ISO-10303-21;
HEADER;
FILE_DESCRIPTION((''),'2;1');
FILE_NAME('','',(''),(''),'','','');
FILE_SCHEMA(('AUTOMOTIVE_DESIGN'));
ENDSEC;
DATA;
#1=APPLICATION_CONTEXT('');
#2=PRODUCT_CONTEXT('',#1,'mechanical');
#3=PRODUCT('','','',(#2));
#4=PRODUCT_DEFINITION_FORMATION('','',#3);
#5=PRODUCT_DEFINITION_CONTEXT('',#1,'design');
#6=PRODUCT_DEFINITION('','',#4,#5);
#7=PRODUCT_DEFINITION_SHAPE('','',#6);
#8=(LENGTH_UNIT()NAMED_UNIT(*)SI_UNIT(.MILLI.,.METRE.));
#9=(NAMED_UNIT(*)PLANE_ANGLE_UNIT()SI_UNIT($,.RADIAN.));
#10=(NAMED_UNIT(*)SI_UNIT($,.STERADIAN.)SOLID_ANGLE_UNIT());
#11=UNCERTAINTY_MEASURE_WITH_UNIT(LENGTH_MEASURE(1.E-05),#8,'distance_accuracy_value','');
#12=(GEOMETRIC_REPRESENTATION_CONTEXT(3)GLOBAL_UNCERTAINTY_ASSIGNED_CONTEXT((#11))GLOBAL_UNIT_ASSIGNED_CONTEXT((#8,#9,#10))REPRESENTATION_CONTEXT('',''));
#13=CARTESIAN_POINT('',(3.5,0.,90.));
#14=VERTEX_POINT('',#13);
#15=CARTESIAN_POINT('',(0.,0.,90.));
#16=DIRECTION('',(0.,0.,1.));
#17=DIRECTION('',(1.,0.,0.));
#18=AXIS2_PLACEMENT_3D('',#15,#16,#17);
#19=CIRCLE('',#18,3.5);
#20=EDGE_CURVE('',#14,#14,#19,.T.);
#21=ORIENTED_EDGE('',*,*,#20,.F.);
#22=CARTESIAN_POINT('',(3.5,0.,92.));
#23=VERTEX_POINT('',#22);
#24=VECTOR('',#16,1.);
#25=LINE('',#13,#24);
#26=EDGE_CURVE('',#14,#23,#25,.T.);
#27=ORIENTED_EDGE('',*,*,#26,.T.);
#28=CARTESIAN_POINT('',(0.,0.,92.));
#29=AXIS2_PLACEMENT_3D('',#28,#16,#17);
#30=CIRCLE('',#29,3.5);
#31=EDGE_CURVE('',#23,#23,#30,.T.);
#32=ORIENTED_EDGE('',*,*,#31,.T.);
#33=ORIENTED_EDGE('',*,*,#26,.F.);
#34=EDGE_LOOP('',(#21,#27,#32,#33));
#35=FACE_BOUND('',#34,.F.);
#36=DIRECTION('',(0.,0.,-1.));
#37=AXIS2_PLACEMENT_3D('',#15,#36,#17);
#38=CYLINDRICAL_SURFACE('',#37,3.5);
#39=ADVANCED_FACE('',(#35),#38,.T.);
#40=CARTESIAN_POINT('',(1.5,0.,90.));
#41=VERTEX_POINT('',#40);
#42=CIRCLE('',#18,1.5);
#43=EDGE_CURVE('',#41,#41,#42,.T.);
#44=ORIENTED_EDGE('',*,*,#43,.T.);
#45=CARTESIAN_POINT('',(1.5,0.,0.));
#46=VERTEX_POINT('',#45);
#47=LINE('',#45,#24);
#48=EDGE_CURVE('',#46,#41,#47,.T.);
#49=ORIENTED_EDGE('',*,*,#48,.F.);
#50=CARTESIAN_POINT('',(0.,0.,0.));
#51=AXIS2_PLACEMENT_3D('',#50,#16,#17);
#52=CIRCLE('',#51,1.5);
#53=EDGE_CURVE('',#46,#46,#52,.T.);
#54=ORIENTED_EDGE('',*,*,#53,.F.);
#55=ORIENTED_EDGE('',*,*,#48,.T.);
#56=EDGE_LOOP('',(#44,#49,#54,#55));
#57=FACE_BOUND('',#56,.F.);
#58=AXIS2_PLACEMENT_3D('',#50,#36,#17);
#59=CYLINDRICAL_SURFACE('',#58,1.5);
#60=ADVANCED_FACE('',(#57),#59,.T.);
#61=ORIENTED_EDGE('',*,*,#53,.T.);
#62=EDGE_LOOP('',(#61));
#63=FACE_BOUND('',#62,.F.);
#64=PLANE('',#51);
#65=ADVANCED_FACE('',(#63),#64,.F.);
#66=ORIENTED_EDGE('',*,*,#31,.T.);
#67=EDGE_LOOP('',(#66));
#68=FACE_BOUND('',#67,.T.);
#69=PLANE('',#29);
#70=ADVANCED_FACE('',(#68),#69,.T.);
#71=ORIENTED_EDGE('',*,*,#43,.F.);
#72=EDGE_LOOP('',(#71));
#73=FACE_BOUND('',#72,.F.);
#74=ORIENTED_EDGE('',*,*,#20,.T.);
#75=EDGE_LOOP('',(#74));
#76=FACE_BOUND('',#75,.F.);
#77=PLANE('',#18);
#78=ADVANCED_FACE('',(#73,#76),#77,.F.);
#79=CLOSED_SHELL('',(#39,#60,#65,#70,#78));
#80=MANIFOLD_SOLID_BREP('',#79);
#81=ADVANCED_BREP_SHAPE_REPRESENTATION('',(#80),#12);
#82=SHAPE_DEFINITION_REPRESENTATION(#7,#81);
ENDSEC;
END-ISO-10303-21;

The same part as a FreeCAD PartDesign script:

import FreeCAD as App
import Part
import Sketcher

doc = App.newDocument("Part")
params = doc.addObject("Spreadsheet::Sheet", "Params")
for row, (alias, value) in enumerate([
    ("sketch1_diameter", "3 mm"),
    ("pad1_length", "90 mm"),
    ("sketch2_diameter", "7 mm"),
    ("pad2_length", "2 mm"),
], start=1):
    params.set(f"A{row}", alias)
    params.set(f"B{row}", "=" + value)
    params.setAlias(f"B{row}", alias)

body = doc.addObject("PartDesign::Body", "Body")

# Sketch on XY plane
sketch1 = body.newObject("Sketcher::SketchObject", "Sketch")
sketch1.AttachmentSupport = (doc.getObject("XY_Plane"), [""])
sketch1.MapMode = "FlatFace"
sketch1.addGeometry(Part.Circle(App.Vector(0, 0, 0), App.Vector(0, 0, 1), 1.5), False)
sketch1.addConstraint(Sketcher.Constraint("Coincident", 0, 3, -1, 1))
sketch1.addConstraint(Sketcher.Constraint("Diameter", 0, 3.0))
sketch1.setExpression("Constraints[1]", "Params.sketch1_diameter")
pad1 = body.newObject("PartDesign::Pad", "Pad")
pad1.Profile = sketch1
pad1.setExpression("Length", "Params.pad1_length")

# Sketch on XY plane
sketch2 = body.newObject("Sketcher::SketchObject", "Sketch001")
sketch2.AttachmentSupport = (doc.getObject("XY_Plane"), [""])
sketch2.MapMode = "FlatFace"
sketch2.AttachmentOffset = App.Placement(App.Vector(0, 0, 90), App.Rotation())
sketch2.addGeometry(Part.Circle(App.Vector(0, 0, 0), App.Vector(0, 0, 1), 3.5), False)
sketch2.addConstraint(Sketcher.Constraint("Coincident", 0, 3, -1, 1))
sketch2.addConstraint(Sketcher.Constraint("Diameter", 0, 7.0))
sketch2.setExpression("Constraints[1]", "Params.sketch2_diameter")
pad2 = body.newObject("PartDesign::Pad", "Pad001")
pad2.Profile = sketch2
pad2.setExpression("Length", "Params.pad2_length")

doc.recompute()
